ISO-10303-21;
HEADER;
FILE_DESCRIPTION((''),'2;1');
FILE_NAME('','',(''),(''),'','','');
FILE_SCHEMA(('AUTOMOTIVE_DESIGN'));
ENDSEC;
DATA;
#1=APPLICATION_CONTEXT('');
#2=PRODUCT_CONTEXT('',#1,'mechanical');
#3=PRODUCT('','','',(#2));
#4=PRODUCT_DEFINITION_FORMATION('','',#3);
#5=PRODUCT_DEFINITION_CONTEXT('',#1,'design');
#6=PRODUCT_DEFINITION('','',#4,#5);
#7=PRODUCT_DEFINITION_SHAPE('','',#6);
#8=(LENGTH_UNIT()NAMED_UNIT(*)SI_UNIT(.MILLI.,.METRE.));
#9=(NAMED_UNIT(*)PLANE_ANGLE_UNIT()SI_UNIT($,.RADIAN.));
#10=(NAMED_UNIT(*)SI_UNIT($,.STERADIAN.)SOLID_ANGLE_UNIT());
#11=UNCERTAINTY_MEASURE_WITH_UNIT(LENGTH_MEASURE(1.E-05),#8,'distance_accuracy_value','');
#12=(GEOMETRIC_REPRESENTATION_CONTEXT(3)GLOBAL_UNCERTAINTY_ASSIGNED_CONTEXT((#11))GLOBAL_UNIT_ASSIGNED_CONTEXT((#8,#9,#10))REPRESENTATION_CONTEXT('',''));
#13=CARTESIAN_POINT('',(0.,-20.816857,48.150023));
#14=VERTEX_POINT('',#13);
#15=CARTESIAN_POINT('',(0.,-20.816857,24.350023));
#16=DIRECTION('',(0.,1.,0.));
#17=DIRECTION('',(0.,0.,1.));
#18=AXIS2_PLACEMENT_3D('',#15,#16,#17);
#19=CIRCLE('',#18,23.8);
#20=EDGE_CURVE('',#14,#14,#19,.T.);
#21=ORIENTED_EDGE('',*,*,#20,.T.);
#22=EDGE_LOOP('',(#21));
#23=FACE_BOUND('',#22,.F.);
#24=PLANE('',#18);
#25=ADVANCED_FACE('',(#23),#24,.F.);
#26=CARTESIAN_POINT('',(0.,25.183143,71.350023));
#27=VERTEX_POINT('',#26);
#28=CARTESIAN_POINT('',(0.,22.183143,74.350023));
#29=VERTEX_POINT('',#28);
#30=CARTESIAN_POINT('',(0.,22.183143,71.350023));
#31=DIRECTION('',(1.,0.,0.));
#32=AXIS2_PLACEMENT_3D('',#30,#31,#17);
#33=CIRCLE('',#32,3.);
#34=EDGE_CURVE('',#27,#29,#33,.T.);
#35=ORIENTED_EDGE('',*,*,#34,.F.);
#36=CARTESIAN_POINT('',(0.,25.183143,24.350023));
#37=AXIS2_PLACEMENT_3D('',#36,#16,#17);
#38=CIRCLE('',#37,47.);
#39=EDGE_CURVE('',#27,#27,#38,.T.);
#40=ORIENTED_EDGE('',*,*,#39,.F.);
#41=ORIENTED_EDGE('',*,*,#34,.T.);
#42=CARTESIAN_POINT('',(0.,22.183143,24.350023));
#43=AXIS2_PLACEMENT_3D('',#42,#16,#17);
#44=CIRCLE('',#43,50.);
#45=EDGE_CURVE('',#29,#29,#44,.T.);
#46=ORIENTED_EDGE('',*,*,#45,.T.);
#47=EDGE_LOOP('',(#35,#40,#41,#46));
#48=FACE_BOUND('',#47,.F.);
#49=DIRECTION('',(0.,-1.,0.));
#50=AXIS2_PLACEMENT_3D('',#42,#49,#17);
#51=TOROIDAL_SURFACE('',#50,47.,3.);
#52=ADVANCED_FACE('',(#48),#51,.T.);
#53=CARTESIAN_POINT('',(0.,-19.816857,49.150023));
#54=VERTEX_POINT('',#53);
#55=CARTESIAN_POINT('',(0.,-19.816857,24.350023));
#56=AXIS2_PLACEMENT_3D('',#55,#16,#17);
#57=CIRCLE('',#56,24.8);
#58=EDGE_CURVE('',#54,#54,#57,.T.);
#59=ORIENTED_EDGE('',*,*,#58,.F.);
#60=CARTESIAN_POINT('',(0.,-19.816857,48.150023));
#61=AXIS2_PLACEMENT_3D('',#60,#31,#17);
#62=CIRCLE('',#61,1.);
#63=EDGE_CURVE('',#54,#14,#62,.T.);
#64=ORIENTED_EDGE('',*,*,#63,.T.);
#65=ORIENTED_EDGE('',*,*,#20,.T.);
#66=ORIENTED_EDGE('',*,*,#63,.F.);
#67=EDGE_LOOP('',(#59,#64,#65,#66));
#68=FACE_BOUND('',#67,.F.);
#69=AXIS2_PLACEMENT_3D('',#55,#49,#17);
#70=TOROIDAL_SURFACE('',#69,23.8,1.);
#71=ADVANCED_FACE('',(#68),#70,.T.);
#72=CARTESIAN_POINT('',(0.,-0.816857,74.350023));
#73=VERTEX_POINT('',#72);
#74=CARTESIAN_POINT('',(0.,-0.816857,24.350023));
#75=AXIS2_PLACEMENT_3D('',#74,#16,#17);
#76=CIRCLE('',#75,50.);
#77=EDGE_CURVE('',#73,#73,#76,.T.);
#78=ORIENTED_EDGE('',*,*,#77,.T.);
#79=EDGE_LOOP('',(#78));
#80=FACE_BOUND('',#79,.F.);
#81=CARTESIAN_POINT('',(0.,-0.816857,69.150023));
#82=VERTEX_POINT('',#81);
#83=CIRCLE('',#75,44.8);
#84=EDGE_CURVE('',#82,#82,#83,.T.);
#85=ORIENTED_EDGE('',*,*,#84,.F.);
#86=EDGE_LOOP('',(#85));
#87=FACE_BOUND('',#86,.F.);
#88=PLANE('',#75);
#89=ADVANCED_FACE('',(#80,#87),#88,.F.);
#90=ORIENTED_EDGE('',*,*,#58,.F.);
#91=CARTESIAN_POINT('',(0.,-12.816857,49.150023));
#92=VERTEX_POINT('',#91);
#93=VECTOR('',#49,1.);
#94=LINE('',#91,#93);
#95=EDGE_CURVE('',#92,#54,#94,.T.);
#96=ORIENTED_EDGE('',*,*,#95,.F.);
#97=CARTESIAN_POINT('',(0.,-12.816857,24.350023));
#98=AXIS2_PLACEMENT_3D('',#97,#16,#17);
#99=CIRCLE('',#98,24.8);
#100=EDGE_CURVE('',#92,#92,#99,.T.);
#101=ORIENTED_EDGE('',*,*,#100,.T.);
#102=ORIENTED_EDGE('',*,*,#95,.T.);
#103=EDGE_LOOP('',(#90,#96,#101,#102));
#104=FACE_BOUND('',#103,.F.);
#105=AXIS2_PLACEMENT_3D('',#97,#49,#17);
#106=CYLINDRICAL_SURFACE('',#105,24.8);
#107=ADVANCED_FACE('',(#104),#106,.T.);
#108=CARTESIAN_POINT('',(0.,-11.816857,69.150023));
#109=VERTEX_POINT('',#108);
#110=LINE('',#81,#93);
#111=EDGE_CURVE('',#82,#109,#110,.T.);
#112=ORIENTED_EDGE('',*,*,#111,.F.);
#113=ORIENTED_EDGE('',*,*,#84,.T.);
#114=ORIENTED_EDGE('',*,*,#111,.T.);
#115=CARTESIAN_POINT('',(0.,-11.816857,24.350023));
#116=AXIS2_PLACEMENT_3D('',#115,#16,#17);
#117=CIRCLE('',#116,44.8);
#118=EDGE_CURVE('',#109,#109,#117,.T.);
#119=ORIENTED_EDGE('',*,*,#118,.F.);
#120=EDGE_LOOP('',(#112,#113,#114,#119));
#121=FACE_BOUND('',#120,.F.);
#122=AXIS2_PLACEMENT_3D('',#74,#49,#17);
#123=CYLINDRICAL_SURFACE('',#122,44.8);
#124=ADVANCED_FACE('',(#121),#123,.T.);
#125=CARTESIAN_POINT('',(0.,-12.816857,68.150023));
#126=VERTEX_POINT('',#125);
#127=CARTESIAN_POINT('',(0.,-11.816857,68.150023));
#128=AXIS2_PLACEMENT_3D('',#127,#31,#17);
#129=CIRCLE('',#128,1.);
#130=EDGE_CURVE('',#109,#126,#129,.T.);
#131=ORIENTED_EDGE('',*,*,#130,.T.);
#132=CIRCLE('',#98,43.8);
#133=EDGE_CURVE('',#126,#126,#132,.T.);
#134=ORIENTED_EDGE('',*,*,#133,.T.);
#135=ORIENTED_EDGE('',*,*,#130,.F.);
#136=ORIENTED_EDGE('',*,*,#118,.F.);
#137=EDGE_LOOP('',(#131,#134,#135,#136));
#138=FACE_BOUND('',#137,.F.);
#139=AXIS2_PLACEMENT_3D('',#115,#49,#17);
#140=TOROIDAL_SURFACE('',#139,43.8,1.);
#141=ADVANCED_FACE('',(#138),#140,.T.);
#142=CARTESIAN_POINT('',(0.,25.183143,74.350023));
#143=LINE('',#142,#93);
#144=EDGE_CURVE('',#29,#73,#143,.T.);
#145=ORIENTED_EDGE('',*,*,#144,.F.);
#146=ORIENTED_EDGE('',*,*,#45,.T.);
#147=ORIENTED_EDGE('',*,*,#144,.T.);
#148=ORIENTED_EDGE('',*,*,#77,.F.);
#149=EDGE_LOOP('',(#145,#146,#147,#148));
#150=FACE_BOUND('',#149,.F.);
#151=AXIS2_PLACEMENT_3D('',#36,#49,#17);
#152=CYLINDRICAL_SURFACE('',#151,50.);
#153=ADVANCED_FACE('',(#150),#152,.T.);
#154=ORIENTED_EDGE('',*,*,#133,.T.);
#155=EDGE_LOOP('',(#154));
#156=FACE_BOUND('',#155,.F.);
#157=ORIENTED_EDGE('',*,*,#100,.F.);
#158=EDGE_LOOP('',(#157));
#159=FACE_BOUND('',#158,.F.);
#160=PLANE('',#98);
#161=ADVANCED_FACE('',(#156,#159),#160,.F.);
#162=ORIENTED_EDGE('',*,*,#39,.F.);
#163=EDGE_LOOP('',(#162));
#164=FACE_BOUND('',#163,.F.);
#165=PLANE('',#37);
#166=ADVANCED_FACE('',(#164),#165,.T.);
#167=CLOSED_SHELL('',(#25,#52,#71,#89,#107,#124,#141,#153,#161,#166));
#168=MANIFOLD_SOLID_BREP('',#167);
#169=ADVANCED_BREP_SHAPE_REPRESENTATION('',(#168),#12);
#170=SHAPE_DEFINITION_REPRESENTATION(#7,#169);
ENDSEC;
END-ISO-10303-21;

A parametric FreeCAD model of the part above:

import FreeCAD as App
import Part
import Sketcher

V = App.Vector
Q = App.Units.Quantity


def edges_at(feature, points):
    """Names of the edges that pass closest to the given points."""
    edges = feature.Shape.Edges
    near = lambda p: min(range(len(edges)), key=lambda i: edges[i].distToShape(Part.Vertex(*p))[0])
    return sorted({f"Edge{near(p) + 1}" for p in points})


def add_polygon(sketch, points):
    """Adds a closed chain of lines whose ends are joined by coincident constraints."""
    first, n = sketch.GeometryCount, len(points)
    for a, b in zip(points, points[1:] + points[:1]):
        sketch.addGeometry(Part.LineSegment(App.Vector(*a, 0), App.Vector(*b, 0)), False)
    for i in range(n):
        sketch.addConstraint(Sketcher.Constraint("Coincident", first + i, 2, first + (i + 1) % n, 1))

doc = App.newDocument("Part")
params = doc.addObject("Spreadsheet::Sheet", "Params")
for row, (alias, value) in enumerate([
    ("sketch1_width", "46 mm"),
    ("sketch1_width2", "26 mm"),
    ("sketch1_width3", "12 mm"),
    ("sketch1_height", "50 mm"),
    ("sketch1_height2", "20 mm"),
    ("revolution_angle", "360 deg"),
    ("fillet_radius", "3 mm"),
    ("fillet2_radius", "1 mm"),
    ("fillet3_radius", "1 mm"),
], start=1):
    params.set(f"A{row}", alias)
    params.set(f"B{row}", "=" + value)
    params.setAlias(f"B{row}", alias)

body = doc.addObject("PartDesign::Body", "Body")

sketch1 = body.newObject("Sketcher::SketchObject", "Sketch")
sketch1.AttachmentSupport = (doc.getObject("YZ_Plane"), [""])
sketch1.MapMode = "FlatFace"
add_polygon(sketch1, [(-20.816857, 49.150023), (-20.816857, 24.350023), (25.183143, 24.350023), (25.183143, 74.350023), (-0.816857, 74.350023), (-0.816857, 69.150023), (-12.816857, 69.150023), (-12.816857, 49.150023)])
sketch1.addGeometry(Part.LineSegment(V(-20.816857, 24.350023, 0), V(25.183143, 24.350023, 0)), True)
sketch1.addConstraint(Sketcher.Constraint("Vertical", 0))
sketch1.addConstraint(Sketcher.Constraint("Horizontal", 1))
sketch1.addConstraint(Sketcher.Constraint("Vertical", 2))
sketch1.addConstraint(Sketcher.Constraint("Horizontal", 3))
sketch1.addConstraint(Sketcher.Constraint("Vertical", 4))
sketch1.addConstraint(Sketcher.Constraint("Horizontal", 5))
sketch1.addConstraint(Sketcher.Constraint("Vertical", 6))
sketch1.addConstraint(Sketcher.Constraint("Horizontal", 7))
sketch1.addConstraint(Sketcher.Constraint("Horizontal", 8))
sketch1.addConstraint(Sketcher.Constraint("Coincident", 8, 1, 0, 2))
sketch1.addConstraint(Sketcher.Constraint("Vertical", 2, 2, 8, 2))
sketch1.addConstraint(Sketcher.Constraint("DistanceX", 1, 1, 1, 2, Q("46 mm")))
sketch1.addConstraint(Sketcher.Constraint("DistanceX", 3, 2, 3, 1, Q("26 mm")))
sketch1.addConstraint(Sketcher.Constraint("DistanceX", 5, 2, 5, 1, Q("12 mm")))
sketch1.addConstraint(Sketcher.Constraint("DistanceY", 2, 1, 2, 2, Q("50 mm")))
sketch1.addConstraint(Sketcher.Constraint("DistanceY", 6, 2, 6, 1, Q("20 mm")))
sketch1.addConstraint(Sketcher.Constraint("DistanceY", 0, 2, 0, 1, Q("24.8 mm")))
sketch1.addConstraint(Sketcher.Constraint("DistanceX", 0, 2, -1, 1, Q("20.816857 mm")))
sketch1.addConstraint(Sketcher.Constraint("DistanceY", -1, 1, 0, 2, Q("24.350023 mm")))
sketch1.setExpression("Constraints[19]", "Params.sketch1_width")
sketch1.setExpression("Constraints[20]", "Params.sketch1_width2")
sketch1.setExpression("Constraints[21]", "Params.sketch1_width3")
sketch1.setExpression("Constraints[22]", "Params.sketch1_height")
sketch1.setExpression("Constraints[23]", "Params.sketch1_height2")
revolution = body.newObject("PartDesign::Revolution", "Revolution")
revolution.Profile = sketch1
revolution.ReferenceAxis = (sketch1, ["Axis0"])
revolution.setExpression("Angle", "Params.revolution_angle")
doc.recompute()

fillet = body.newObject("PartDesign::Fillet", "Fillet")
fillet.Base = (revolution, edges_at(revolution, [(0, 25.183, -25.65)]))
fillet.setExpression("Radius", "Params.fillet_radius")
doc.recompute()

fillet2 = body.newObject("PartDesign::Fillet", "Fillet001")
fillet2.Base = (fillet, edges_at(fillet, [(0, -12.817, -20.45)]))
fillet2.setExpression("Radius", "Params.fillet2_radius")
doc.recompute()

fillet3 = body.newObject("PartDesign::Fillet", "Fillet002")
fillet3.Base = (fillet2, edges_at(fillet2, [(0, -20.817, -0.45)]))
fillet3.setExpression("Radius", "Params.fillet3_radius")

doc.recompute()
